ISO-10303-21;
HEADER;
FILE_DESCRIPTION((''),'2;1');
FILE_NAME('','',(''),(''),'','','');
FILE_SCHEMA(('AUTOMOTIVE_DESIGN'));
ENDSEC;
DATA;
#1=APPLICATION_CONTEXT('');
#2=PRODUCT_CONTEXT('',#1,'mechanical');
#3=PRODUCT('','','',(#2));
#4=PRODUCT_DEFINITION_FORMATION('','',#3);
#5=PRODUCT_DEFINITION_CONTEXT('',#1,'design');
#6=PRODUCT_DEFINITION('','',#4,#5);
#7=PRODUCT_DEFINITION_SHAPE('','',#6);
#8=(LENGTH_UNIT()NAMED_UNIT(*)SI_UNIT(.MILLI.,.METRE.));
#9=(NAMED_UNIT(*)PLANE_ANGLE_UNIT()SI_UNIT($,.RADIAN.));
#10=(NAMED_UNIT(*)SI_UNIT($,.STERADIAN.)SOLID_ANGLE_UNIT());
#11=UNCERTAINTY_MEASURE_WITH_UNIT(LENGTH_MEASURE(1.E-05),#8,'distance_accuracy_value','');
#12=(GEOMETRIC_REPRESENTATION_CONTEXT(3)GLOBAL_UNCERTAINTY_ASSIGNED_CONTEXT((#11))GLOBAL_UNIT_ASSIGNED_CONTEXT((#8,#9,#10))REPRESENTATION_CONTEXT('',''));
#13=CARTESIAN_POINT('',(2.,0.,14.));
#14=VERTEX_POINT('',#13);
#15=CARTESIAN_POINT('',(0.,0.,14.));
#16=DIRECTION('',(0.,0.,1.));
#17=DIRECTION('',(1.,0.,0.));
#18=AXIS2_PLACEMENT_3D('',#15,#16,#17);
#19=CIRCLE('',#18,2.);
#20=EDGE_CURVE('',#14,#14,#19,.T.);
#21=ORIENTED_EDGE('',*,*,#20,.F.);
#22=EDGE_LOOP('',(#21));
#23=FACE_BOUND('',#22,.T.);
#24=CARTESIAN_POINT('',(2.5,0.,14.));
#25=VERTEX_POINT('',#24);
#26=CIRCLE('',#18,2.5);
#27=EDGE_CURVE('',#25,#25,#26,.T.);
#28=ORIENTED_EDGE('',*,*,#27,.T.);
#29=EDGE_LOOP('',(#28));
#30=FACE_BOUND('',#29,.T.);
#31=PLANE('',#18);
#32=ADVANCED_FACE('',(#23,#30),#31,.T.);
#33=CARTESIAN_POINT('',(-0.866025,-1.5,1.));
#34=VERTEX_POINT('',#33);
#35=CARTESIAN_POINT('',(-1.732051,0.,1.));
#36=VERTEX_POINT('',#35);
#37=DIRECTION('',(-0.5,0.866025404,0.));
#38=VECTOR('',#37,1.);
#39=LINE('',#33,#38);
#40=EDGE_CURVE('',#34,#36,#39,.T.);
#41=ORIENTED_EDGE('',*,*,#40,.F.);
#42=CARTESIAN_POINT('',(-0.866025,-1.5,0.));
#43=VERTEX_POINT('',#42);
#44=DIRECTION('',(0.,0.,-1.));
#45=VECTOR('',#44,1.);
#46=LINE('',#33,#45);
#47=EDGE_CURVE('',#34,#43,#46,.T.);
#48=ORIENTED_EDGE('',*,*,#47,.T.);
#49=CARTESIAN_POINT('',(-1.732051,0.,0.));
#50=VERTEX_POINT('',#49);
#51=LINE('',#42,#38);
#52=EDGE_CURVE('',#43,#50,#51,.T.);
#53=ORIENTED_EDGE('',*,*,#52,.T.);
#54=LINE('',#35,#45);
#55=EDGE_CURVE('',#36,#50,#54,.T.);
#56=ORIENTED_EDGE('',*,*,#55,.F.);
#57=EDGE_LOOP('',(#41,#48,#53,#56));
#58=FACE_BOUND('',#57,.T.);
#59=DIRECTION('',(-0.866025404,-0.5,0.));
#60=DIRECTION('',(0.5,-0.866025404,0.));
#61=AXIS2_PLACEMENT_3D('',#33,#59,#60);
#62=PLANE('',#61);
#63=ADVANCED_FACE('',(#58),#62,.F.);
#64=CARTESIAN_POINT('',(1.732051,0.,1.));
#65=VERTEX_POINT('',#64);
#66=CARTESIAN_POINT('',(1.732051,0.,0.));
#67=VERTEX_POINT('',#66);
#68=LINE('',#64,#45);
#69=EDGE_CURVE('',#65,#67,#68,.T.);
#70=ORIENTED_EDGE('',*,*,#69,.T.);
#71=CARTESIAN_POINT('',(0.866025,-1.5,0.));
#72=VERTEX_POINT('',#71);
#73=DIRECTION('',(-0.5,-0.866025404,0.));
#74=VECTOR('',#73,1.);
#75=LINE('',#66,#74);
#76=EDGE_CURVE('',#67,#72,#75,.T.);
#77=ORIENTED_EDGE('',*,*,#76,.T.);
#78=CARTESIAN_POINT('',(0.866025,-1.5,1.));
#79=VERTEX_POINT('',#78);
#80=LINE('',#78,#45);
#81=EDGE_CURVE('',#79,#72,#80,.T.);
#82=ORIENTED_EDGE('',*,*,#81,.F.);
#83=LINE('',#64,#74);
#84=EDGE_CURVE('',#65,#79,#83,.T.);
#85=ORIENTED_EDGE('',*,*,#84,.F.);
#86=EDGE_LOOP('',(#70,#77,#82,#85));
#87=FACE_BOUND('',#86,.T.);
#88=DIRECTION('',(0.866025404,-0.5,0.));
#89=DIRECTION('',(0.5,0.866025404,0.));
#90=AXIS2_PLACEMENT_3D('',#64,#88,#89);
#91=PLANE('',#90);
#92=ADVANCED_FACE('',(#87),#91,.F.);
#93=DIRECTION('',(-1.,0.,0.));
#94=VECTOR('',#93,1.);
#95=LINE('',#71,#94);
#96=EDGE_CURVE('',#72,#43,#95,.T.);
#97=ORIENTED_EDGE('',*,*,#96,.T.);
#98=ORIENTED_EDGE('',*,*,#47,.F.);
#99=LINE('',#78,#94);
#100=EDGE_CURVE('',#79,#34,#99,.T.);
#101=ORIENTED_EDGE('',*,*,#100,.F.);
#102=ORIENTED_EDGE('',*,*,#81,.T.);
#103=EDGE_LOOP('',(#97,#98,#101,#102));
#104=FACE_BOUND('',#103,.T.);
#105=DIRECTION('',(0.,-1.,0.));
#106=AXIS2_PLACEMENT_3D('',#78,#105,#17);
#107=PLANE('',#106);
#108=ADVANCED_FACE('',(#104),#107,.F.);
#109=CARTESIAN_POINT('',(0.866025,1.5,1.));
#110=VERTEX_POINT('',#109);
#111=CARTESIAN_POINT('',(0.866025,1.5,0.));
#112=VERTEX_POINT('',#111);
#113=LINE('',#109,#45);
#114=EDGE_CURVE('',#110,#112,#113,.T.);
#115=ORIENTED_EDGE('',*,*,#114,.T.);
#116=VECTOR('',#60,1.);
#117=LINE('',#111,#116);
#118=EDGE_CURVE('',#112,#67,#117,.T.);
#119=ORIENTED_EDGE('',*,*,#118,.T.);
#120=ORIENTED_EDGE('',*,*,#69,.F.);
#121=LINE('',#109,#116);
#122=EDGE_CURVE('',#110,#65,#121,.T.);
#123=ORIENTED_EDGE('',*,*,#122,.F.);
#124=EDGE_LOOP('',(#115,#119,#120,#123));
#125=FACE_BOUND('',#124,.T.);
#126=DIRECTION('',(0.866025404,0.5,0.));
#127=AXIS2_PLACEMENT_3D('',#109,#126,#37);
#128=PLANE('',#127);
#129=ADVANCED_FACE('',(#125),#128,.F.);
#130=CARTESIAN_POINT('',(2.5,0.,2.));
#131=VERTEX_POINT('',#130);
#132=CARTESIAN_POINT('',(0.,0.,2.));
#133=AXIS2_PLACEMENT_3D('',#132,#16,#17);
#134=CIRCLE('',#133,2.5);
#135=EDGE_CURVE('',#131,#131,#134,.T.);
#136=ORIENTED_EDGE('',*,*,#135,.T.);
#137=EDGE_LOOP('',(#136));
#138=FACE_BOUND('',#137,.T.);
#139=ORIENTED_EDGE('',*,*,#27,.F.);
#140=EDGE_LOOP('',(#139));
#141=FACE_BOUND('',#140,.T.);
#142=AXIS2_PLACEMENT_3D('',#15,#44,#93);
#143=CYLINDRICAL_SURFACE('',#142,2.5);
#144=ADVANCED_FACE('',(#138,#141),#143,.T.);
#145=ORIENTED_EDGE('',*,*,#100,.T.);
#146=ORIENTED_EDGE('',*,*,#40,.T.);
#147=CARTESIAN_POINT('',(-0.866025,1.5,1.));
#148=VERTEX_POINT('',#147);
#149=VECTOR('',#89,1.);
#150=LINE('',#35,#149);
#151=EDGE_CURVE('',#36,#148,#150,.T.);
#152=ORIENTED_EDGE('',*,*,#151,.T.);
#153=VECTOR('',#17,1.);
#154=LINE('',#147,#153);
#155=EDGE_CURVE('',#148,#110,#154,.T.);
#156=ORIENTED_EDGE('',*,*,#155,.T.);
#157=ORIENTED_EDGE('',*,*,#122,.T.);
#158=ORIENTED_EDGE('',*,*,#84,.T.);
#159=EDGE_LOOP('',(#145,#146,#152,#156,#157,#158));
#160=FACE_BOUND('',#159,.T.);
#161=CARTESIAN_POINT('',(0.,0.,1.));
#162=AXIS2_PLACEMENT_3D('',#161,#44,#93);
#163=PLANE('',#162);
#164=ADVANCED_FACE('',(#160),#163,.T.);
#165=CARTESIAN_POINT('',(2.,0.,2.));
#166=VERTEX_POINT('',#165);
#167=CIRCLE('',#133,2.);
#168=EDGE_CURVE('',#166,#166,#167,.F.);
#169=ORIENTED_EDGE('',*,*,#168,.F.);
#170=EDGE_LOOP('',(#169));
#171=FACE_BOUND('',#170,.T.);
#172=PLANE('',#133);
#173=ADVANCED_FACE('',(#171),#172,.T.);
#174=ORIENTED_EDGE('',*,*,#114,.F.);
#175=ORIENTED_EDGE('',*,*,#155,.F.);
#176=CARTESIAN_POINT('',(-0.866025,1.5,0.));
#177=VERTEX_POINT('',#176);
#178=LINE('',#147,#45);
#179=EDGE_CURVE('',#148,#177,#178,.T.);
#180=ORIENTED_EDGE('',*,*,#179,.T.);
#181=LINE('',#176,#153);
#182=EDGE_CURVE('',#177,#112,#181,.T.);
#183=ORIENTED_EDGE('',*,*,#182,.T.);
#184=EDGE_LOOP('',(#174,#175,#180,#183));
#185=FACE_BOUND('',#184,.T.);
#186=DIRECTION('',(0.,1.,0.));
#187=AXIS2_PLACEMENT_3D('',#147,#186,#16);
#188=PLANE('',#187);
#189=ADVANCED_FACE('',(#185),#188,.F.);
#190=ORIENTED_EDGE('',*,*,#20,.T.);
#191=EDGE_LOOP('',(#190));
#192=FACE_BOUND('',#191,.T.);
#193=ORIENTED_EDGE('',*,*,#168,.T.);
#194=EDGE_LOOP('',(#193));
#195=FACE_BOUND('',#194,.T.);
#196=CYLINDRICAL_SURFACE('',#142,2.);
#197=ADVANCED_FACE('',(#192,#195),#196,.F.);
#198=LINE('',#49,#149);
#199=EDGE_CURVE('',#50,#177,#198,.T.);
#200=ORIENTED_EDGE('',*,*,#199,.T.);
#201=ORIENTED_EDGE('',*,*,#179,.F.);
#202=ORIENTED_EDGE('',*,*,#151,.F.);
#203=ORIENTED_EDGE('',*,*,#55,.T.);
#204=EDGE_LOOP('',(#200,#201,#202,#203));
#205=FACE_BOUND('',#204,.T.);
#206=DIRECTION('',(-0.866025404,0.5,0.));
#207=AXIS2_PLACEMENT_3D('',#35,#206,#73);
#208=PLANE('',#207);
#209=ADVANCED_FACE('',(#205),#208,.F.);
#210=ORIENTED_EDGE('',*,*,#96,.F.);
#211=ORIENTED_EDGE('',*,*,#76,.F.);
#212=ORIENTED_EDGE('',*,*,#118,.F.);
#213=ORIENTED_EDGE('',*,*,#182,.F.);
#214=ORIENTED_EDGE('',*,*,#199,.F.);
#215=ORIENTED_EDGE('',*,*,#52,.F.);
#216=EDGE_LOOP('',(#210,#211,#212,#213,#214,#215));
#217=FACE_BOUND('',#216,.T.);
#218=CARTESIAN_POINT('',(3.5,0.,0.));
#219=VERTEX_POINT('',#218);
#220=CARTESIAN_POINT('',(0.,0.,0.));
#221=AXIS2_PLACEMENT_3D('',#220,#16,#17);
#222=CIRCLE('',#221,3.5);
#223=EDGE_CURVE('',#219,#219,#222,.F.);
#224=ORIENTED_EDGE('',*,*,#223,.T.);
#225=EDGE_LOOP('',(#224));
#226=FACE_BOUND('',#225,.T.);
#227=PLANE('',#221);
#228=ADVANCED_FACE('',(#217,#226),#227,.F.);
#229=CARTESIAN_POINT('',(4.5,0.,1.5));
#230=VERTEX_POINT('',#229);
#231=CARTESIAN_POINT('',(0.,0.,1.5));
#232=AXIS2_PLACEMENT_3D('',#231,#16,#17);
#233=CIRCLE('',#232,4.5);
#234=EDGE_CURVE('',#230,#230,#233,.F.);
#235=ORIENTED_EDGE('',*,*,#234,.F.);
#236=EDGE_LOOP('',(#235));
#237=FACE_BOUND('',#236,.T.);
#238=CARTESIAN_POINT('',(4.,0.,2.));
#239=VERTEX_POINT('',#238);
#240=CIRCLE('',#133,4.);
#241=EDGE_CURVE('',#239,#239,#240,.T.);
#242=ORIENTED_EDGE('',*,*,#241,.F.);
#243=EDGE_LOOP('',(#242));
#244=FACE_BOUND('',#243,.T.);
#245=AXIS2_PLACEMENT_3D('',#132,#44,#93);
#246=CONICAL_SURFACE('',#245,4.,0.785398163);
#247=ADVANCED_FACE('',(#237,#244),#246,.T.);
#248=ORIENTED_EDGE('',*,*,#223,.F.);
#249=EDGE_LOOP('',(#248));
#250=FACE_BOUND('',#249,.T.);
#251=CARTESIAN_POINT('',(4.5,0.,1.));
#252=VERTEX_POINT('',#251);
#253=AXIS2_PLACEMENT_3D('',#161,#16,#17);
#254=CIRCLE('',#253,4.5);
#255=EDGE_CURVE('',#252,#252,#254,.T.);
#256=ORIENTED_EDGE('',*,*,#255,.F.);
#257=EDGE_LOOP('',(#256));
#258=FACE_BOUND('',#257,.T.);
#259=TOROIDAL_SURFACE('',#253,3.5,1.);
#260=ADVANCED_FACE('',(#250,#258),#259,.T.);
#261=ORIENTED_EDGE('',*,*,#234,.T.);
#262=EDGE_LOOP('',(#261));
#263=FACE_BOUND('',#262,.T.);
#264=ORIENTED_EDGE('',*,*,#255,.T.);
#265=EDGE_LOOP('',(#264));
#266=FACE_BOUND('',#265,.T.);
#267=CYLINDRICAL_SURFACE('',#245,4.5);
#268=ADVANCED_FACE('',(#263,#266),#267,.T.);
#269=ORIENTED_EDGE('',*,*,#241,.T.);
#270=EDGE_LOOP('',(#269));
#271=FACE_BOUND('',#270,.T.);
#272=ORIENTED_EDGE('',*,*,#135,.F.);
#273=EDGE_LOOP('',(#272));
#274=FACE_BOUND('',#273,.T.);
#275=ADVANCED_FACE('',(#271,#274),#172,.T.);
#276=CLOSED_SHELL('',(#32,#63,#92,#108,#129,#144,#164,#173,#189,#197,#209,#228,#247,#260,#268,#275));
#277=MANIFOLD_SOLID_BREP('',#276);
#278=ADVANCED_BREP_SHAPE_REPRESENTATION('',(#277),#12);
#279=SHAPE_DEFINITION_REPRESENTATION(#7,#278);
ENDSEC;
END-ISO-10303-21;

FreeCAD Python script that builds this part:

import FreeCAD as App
import Part
import Sketcher

V = App.Vector
Q = App.Units.Quantity


def edges_at(feature, points):
    """Names of the edges that pass closest to the given points."""
    edges = feature.Shape.Edges
    near = lambda p: min(range(len(edges)), key=lambda i: edges[i].distToShape(Part.Vertex(*p))[0])
    return sorted({f"Edge{near(p) + 1}" for p in points})

doc = App.newDocument("Part")
body = doc.addObject("PartDesign::Body", "Body")

sketch1 = body.newObject("Sketcher::SketchObject", "Sketch")
sketch1.AttachmentSupport = (doc.getObject("XY_Plane"), [""])
sketch1.MapMode = "FlatFace"
sketch1.addGeometry(Part.Circle(V(0, 0, 0), V(0, 0, 1), 4.5), False)
sketch1.addConstraint([
    Sketcher.Constraint("Coincident", 0, 3, -1, 1),
    Sketcher.Constraint("Diameter", 0, 9.0),
])
pad1 = body.newObject("PartDesign::Pad", "Pad")
pad1.Profile = sketch1
pad1.Length = 2

sketch2 = body.newObject("Sketcher::SketchObject", "Sketch001")
sketch2.AttachmentSupport = (doc.getObject("XY_Plane"), [""])
sketch2.MapMode = "FlatFace"
sketch2.AttachmentOffset = App.Placement(V(0, 0, 2), App.Rotation())
sketch2.addGeometry([
    Part.Circle(V(0, 0, 0), V(0, 0, 1), 2.5),
    Part.Circle(V(0, 0, 0), V(0, 0, 1), 2),
], False)
sketch2.addConstraint([
    Sketcher.Constraint("Coincident", 0, 3, -1, 1),
    Sketcher.Constraint("Coincident", 1, 3, -1, 1),
    Sketcher.Constraint("Diameter", 0, 5.0),
    Sketcher.Constraint("Diameter", 1, 4.0),
])
pad2 = body.newObject("PartDesign::Pad", "Pad001")
pad2.Profile = sketch2
pad2.Length = 12
doc.recompute()

fillet = body.newObject("PartDesign::Fillet", "Fillet")
fillet.Base = (pad2, edges_at(pad2, [(-4.5, 0, 0)]))
fillet.Radius = 1
doc.recompute()

chamfer = body.newObject("PartDesign::Chamfer", "Chamfer")
chamfer.Base = (fillet, edges_at(fillet, [(-4.5, 0, 2)]))
chamfer.Size = 0.5

sketch3 = body.newObject("Sketcher::SketchObject", "Sketch002")
sketch3.AttachmentSupport = (doc.getObject("XY_Plane"), [""])
sketch3.MapMode = "FlatFace"
sketch3.addGeometry([
    Part.LineSegment(V(-0.9, -1.5, 0), V(-1.7, 0, 0)),
    Part.LineSegment(V(-1.7, 0, 0), V(-0.9, 1.5, 0)),
    Part.LineSegment(V(-0.9, 1.5, 0), V(0.9, 1.5, 0)),
    Part.LineSegment(V(0.9, 1.5, 0), V(1.7, 0, 0)),
    Part.LineSegment(V(1.7, 0, 0), V(0.9, -1.5, 0)),
    Part.LineSegment(V(0.9, -1.5, 0), V(-0.9, -1.5, 0)),
], False)
sketch3.addConstraint([
    Sketcher.Constraint("Coincident", 0, 2, 1, 1),
    Sketcher.Constraint("Coincident", 1, 2, 2, 1),
    Sketcher.Constraint("Coincident", 2, 2, 3, 1),
    Sketcher.Constraint("Coincident", 3, 2, 4, 1),
    Sketcher.Constraint("Coincident", 4, 2, 5, 1),
    Sketcher.Constraint("Coincident", 5, 2, 0, 1),
    Sketcher.Constraint("Horizontal", 2),
    Sketcher.Constraint("Horizontal", 5),
    Sketcher.Constraint("Symmetric", 0, 2, 3, 2, -1, 1),
    Sketcher.Constraint("Symmetric", 1, 2, 4, 2, -1, 1),
    Sketcher.Constraint("PointOnObject", 0, 2, -1),
    Sketcher.Constraint("Parallel", 0, 3),
    Sketcher.Constraint("Vertical", 2, 2, 4, 2),
    Sketcher.Constraint("Angle", 0, Q("120 deg")),
    Sketcher.Constraint("DistanceY", 4, 2, 2, 2, 3.0),
    Sketcher.Constraint("DistanceX", 2, 1, 2, 2, 1.732051),
])
pocket1 = body.newObject("PartDesign::Pocket", "Pocket")
pocket1.Profile = sketch3
pocket1.Length = 1
pocket1.Reversed = True

doc.recompute()
